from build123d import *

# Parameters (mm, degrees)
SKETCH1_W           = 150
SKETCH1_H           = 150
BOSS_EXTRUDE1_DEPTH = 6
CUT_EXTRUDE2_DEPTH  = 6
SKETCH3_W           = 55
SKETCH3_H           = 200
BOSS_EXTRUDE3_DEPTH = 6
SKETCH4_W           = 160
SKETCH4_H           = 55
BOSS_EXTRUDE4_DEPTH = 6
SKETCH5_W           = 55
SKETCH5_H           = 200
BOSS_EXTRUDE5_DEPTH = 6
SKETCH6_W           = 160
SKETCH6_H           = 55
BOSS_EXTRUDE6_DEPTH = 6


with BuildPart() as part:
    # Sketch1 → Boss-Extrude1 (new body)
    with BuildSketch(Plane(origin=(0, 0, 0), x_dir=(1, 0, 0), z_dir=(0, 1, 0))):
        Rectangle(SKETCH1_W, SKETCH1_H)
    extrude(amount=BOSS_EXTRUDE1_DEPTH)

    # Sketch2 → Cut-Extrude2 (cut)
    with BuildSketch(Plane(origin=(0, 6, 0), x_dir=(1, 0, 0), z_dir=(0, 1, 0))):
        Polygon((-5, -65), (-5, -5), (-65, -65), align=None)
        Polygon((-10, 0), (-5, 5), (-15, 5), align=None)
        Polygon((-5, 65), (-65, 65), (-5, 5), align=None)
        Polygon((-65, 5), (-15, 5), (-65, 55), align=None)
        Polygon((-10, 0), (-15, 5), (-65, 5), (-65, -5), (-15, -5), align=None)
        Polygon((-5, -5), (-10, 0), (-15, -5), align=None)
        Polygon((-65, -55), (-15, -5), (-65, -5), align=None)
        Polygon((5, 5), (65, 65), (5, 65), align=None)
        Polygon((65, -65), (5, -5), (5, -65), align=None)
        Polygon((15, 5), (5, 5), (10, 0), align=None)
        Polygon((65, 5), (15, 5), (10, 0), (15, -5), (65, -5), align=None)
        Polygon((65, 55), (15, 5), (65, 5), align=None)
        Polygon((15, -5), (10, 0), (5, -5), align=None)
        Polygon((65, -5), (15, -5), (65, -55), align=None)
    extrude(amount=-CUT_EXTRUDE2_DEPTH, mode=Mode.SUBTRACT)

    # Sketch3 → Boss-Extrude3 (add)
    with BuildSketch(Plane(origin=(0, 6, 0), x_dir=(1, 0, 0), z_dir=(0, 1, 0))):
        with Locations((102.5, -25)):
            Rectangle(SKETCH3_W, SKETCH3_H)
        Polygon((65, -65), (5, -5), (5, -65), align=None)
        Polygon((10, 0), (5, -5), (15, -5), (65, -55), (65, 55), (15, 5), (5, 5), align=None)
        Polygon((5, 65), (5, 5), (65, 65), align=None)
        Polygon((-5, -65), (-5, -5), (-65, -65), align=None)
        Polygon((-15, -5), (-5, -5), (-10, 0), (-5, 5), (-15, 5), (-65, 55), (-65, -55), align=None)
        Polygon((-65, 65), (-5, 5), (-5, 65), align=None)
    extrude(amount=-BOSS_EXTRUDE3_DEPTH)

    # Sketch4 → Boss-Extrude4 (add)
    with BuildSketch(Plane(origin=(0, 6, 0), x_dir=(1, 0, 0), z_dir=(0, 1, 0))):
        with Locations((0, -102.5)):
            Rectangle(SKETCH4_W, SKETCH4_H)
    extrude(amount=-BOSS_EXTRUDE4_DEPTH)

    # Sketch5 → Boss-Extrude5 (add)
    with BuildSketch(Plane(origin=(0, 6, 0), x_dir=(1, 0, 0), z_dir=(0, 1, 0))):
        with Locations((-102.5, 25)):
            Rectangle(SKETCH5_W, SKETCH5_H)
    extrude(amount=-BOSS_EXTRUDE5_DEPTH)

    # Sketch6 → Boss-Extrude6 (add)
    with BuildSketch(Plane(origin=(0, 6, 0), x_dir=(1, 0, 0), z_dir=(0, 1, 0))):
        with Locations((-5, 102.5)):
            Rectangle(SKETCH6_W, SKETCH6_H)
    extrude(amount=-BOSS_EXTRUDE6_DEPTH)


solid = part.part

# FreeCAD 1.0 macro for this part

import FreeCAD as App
import Part
import Sketcher
from FreeCAD import Vector

doc = App.newDocument("Part")
params = doc.addObject("Spreadsheet::Sheet", "Params")
for row, (alias, value) in enumerate([
    ("sketch1_width", "150 mm"),
    ("pad1_length", "6 mm"),
    ("sketch2_width", "60 mm"),
    ("sketch2_width2", "10 mm"),
    ("sketch2_height", "110 mm"),
    ("pocket1_length", "6 mm"),
    ("sketch3_width", "55 mm"),
    ("sketch3_width2", "60 mm"),
    ("sketch3_width3", "10 mm"),
    ("sketch3_height", "200 mm"),
    ("sketch3_height2", "110 mm"),
    ("pad2_length", "6 mm"),
    ("sketch4_width", "160 mm"),
    ("sketch4_height", "55 mm"),
    ("pad3_length", "6 mm"),
    ("sketch5_width", "55 mm"),
    ("sketch5_height", "200 mm"),
    ("pad4_length", "6 mm"),
    ("sketch6_width", "160 mm"),
    ("sketch6_height", "55 mm"),
    ("pad5_length", "6 mm"),
], start=1):
    params.set(f"A{row}", alias)
    params.set(f"B{row}", "=" + value)
    params.setAlias(f"B{row}", alias)

body = doc.addObject("PartDesign::Body", "Body")

# Sketch on XZ plane
sketch1 = doc.addObject("Sketcher::SketchObject", "Sketch")
body.addObject(sketch1)
sketch1.AttachmentSupport = (doc.XZ_Plane, [""])
sketch1.MapMode = "FlatFace"
sketch1.addGeometry(Part.LineSegment(Vector(-75, -75, 0), Vector(-75, 75, 0)), False)
sketch1.addGeometry(Part.LineSegment(Vector(-75, 75, 0), Vector(75, 75, 0)), False)
sketch1.addGeometry(Part.LineSegment(Vector(75, 75, 0), Vector(75, -75, 0)), False)
sketch1.addGeometry(Part.LineSegment(Vector(75, -75, 0), Vector(-75, -75, 0)), False)
sketch1.addConstraint(Sketcher.Constraint("Coincident", 0, 2, 1, 1))
sketch1.addConstraint(Sketcher.Constraint("Coincident", 1, 2, 2, 1))
sketch1.addConstraint(Sketcher.Constraint("Coincident", 2, 2, 3, 1))
sketch1.addConstraint(Sketcher.Constraint("Coincident", 3, 2, 0, 1))
sketch1.addConstraint(Sketcher.Constraint("Vertical", 0))
sketch1.addConstraint(Sketcher.Constraint("Horizontal", 1))
sketch1.addConstraint(Sketcher.Constraint("Vertical", 2))
sketch1.addConstraint(Sketcher.Constraint("Horizontal", 3))
sketch1.addConstraint(Sketcher.Constraint("Symmetric", 0, 2, 2, 2, -1, 1))
sketch1.addConstraint(Sketcher.Constraint("Equal", 3, 0))
sketch1.addConstraint(Sketcher.Constraint("DistanceX", 1, 1, 1, 2, 150.0))
sketch1.setExpression("Constraints[10]", "Params.sketch1_width")
pad1 = doc.addObject("PartDesign::Pad", "Pad")
body.addObject(pad1)
pad1.Profile = sketch1
pad1.setExpression("Length", "Params.pad1_length")
pad1.Reversed = True

# Sketch on XZ plane
sketch2 = doc.addObject("Sketcher::SketchObject", "Sketch001")
body.addObject(sketch2)
sketch2.AttachmentSupport = (doc.XZ_Plane, [""])
sketch2.MapMode = "FlatFace"
sketch2.AttachmentOffset = App.Placement(Vector(0, 0, -6), App.Rotation())
sketch2.addGeometry(Part.LineSegment(Vector(-5, 65, 0), Vector(-5, 5, 0)), False)
sketch2.addGeometry(Part.LineSegment(Vector(-5, 5, 0), Vector(-65, 65, 0)), False)
sketch2.addGeometry(Part.LineSegment(Vector(-65, 65, 0), Vector(-5, 65, 0)), False)
sketch2.addGeometry(Part.LineSegment(Vector(-5, -5, 0), Vector(-15, -5, 0)), False)
sketch2.addGeometry(Part.LineSegment(Vector(-15, -5, 0), Vector(-65, -55, 0)), False)
sketch2.addGeometry(Part.LineSegment(Vector(-65, -55, 0), Vector(-65, 55, 0)), False)
sketch2.addGeometry(Part.LineSegment(Vector(-65, 55, 0), Vector(-15, 5, 0)), False)
sketch2.addGeometry(Part.LineSegment(Vector(-15, 5, 0), Vector(-5, 5, 0)), False)
sketch2.addGeometry(Part.LineSegment(Vector(-5, 5, 0), Vector(-10, 0, 0)), False)
sketch2.addGeometry(Part.LineSegment(Vector(-10, 0, 0), Vector(-5, -5, 0)), False)
sketch2.addGeometry(Part.LineSegment(Vector(-5, -65, 0), Vector(-65, -65, 0)), False)
sketch2.addGeometry(Part.LineSegment(Vector(-65, -65, 0), Vector(-5, -5, 0)), False)
sketch2.addGeometry(Part.LineSegment(Vector(-5, -5, 0), Vector(-5, -65, 0)), False)
sketch2.addGeometry(Part.LineSegment(Vector(5, -5, 0), Vector(65, -65, 0)), False)
sketch2.addGeometry(Part.LineSegment(Vector(65, -65, 0), Vector(5, -65, 0)), False)
sketch2.addGeometry(Part.LineSegment(Vector(5, -65, 0), Vector(5, -5, 0)), False)
sketch2.addGeometry(Part.LineSegment(Vector(65, 65, 0), Vector(5, 5, 0)), False)
sketch2.addGeometry(Part.LineSegment(Vector(5, 5, 0), Vector(5, 65, 0)), False)
sketch2.addGeometry(Part.LineSegment(Vector(5, 65, 0), Vector(65, 65, 0)), False)
sketch2.addGeometry(Part.LineSegment(Vector(5, -5, 0), Vector(10, 0, 0)), False)
sketch2.addGeometry(Part.LineSegment(Vector(10, 0, 0), Vector(5, 5, 0)), False)
sketch2.addGeometry(Part.LineSegment(Vector(5, 5, 0), Vector(15, 5, 0)), False)
sketch2.addGeometry(Part.LineSegment(Vector(15, 5, 0), Vector(65, 55, 0)), False)
sketch2.addGeometry(Part.LineSegment(Vector(65, 55, 0), Vector(65, -55, 0)), False)
sketch2.addGeometry(Part.LineSegment(Vector(65, -55, 0), Vector(15, -5, 0)), False)
sketch2.addGeometry(Part.LineSegment(Vector(15, -5, 0), Vector(5, -5, 0)), False)
sketch2.addConstraint(Sketcher.Constraint("Coincident", 0, 2, 1, 1))
sketch2.addConstraint(Sketcher.Constraint("Coincident", 1, 2, 2, 1))
sketch2.addConstraint(Sketcher.Constraint("Coincident", 2, 2, 0, 1))
sketch2.addConstraint(Sketcher.Constraint("Coincident", 3, 2, 4, 1))
sketch2.addConstraint(Sketcher.Constraint("Coincident", 4, 2, 5, 1))
sketch2.addConstraint(Sketcher.Constraint("Coincident", 5, 2, 6, 1))
sketch2.addConstraint(Sketcher.Constraint("Coincident", 6, 2, 7, 1))
sketch2.addConstraint(Sketcher.Constraint("Coincident", 7, 2, 8, 1))
sketch2.addConstraint(Sketcher.Constraint("Coincident", 8, 2, 9, 1))
sketch2.addConstraint(Sketcher.Constraint("Coincident", 9, 2, 3, 1))
sketch2.addConstraint(Sketcher.Constraint("Coincident", 10, 2, 11, 1))
sketch2.addConstraint(Sketcher.Constraint("Coincident", 11, 2, 12, 1))
sketch2.addConstraint(Sketcher.Constraint("Coincident", 12, 2, 10, 1))
sketch2.addConstraint(Sketcher.Constraint("Coincident", 13, 2, 14, 1))
sketch2.addConstraint(Sketcher.Constraint("Coincident", 14, 2, 15, 1))
sketch2.addConstraint(Sketcher.Constraint("Coincident", 15, 2, 13, 1))
sketch2.addConstraint(Sketcher.Constraint("Coincident", 16, 2, 17, 1))
sketch2.addConstraint(Sketcher.Constraint("Coincident", 17, 2, 18, 1))
sketch2.addConstraint(Sketcher.Constraint("Coincident", 18, 2, 16, 1))
sketch2.addConstraint(Sketcher.Constraint("Coincident", 19, 2, 20, 1))
sketch2.addConstraint(Sketcher.Constraint("Coincident", 20, 2, 21, 1))
sketch2.addConstraint(Sketcher.Constraint("Coincident", 21, 2, 22, 1))
sketch2.addConstraint(Sketcher.Constraint("Coincident", 22, 2, 23, 1))
sketch2.addConstraint(Sketcher.Constraint("Coincident", 23, 2, 24, 1))
sketch2.addConstraint(Sketcher.Constraint("Coincident", 24, 2, 25, 1))
sketch2.addConstraint(Sketcher.Constraint("Coincident", 25, 2, 19, 1))
sketch2.addConstraint(Sketcher.Constraint("Vertical", 0))
sketch2.addConstraint(Sketcher.Constraint("Horizontal", 2))
sketch2.addConstraint(Sketcher.Constraint("Horizontal", 3))
sketch2.addConstraint(Sketcher.Constraint("Vertical", 5))
sketch2.addConstraint(Sketcher.Constraint("Horizontal", 7))
sketch2.addConstraint(Sketcher.Constraint("Horizontal", 10))
sketch2.addConstraint(Sketcher.Constraint("Vertical", 12))
sketch2.addConstraint(Sketcher.Constraint("Horizontal", 14))
sketch2.addConstraint(Sketcher.Constraint("Vertical", 15))
sketch2.addConstraint(Sketcher.Constraint("Vertical", 17))
sketch2.addConstraint(Sketcher.Constraint("Horizontal", 18))
sketch2.addConstraint(Sketcher.Constraint("Horizontal", 21))
sketch2.addConstraint(Sketcher.Constraint("Vertical", 23))
sketch2.addConstraint(Sketcher.Constraint("Horizontal", 25))
sketch2.addConstraint(Sketcher.Constraint("Coincident", 7, 2, 0, 2))
sketch2.addConstraint(Sketcher.Constraint("Coincident", 11, 2, 9, 2))
sketch2.addConstraint(Sketcher.Constraint("Coincident", 20, 2, 16, 2))
sketch2.addConstraint(Sketcher.Constraint("Coincident", 25, 2, 15, 2))
sketch2.addConstraint(Sketcher.Constraint("Symmetric", 1, 2, 13, 2, -1, 1))
sketch2.addConstraint(Sketcher.Constraint("Symmetric", 0, 2, 15, 2, -1, 1))
sketch2.addConstraint(Sketcher.Constraint("Symmetric", 9, 2, 16, 2, -1, 1))
sketch2.addConstraint(Sketcher.Constraint("Symmetric", 10, 2, 18, 2, -1, 1))
sketch2.addConstraint(Sketcher.Constraint("Symmetric", 8, 2, 19, 2, -1, 1))
sketch2.addConstraint(Sketcher.Constraint("Symmetric", 4, 2, 22, 2, -1, 1))
sketch2.addConstraint(Sketcher.Constraint("Symmetric", 10, 2, 13, 2, -2))
sketch2.addConstraint(Sketcher.Constraint("Symmetric", 9, 2, 15, 2, -2))
sketch2.addConstraint(Sketcher.Constraint("PointOnObject", 8, 2, -1))
sketch2.addConstraint(Sketcher.Constraint("Perpendicular", 1, 4))
sketch2.addConstraint(Sketcher.Constraint("Perpendicular", 4, 6))
sketch2.addConstraint(Sketcher.Constraint("Perpendicular", 6, 8))
sketch2.addConstraint(Sketcher.Constraint("Perpendicular", 8, 9))
sketch2.addConstraint(Sketcher.Constraint("Perpendicular", 20, 22))
sketch2.addConstraint(Sketcher.Constraint("Perpendicular", 22, 24))
sketch2.addConstraint(Sketcher.Constraint("Horizontal", 5, 2, 22, 2))
sketch2.addConstraint(Sketcher.Constraint("Horizontal", 4, 2, 23, 2))
sketch2.addConstraint(Sketcher.Constraint("Vertical", 1, 2, 4, 2))
sketch2.addConstraint(Sketcher.Constraint("DistanceX", 2, 1, 2, 2, 60.0))
sketch2.addConstraint(Sketcher.Constraint("DistanceX", 3, 2, 3, 1, 10.0))
sketch2.addConstraint(Sketcher.Constraint("DistanceY", 5, 1, 5, 2, 110.0))
sketch2.addConstraint(Sketcher.Constraint("DistanceX", 0, 2, -1, 1, 5.0))
sketch2.setExpression("Constraints[62]", "Params.sketch2_width")
sketch2.setExpression("Constraints[63]", "Params.sketch2_width2")
sketch2.setExpression("Constraints[64]", "Params.sketch2_height")
pocket1 = doc.addObject("PartDesign::Pocket", "Pocket")
body.addObject(pocket1)
pocket1.Profile = sketch2
pocket1.setExpression("Length", "Params.pocket1_length")
pocket1.Reversed = True

# Sketch on XZ plane
sketch3 = doc.addObject("Sketcher::SketchObject", "Sketch002")
body.addObject(sketch3)
sketch3.AttachmentSupport = (doc.XZ_Plane, [""])
sketch3.MapMode = "FlatFace"
sketch3.AttachmentOffset = App.Placement(Vector(0, 0, -6), App.Rotation())
sketch3.addGeometry(Part.LineSegment(Vector(75, -75, 0), Vector(75, 125, 0)), False)
sketch3.addGeometry(Part.LineSegment(Vector(75, 125, 0), Vector(130, 125, 0)), False)
sketch3.addGeometry(Part.LineSegment(Vector(130, 125, 0), Vector(130, -75, 0)), False)
sketch3.addGeometry(Part.LineSegment(Vector(130, -75, 0), Vector(75, -75, 0)), False)
sketch3.addGeometry(Part.LineSegment(Vector(65, 65, 0), Vector(5, 5, 0)), False)
sketch3.addGeometry(Part.LineSegment(Vector(5, 5, 0), Vector(5, 65, 0)), False)
sketch3.addGeometry(Part.LineSegment(Vector(5, 65, 0), Vector(65, 65, 0)), False)
sketch3.addGeometry(Part.LineSegment(Vector(10, 0, 0), Vector(5, 5, 0)), False)
sketch3.addGeometry(Part.LineSegment(Vector(5, 5, 0), Vector(15, 5, 0)), False)
sketch3.addGeometry(Part.LineSegment(Vector(15, 5, 0), Vector(65, 55, 0)), False)
sketch3.addGeometry(Part.LineSegment(Vector(65, 55, 0), Vector(65, -55, 0)), False)
sketch3.addGeometry(Part.LineSegment(Vector(65, -55, 0), Vector(15, -5, 0)), False)
sketch3.addGeometry(Part.LineSegment(Vector(15, -5, 0), Vector(5, -5, 0)), False)
sketch3.addGeometry(Part.LineSegment(Vector(5, -5, 0), Vector(10, 0, 0)), False)
sketch3.addGeometry(Part.LineSegment(Vector(5, -65, 0), Vector(5, -5, 0)), False)
sketch3.addGeometry(Part.LineSegment(Vector(5, -5, 0), Vector(65, -65, 0)), False)
sketch3.addGeometry(Part.LineSegment(Vector(65, -65, 0), Vector(5, -65, 0)), False)
sketch3.addGeometry(Part.LineSegment(Vector(-5, 65, 0), Vector(-5, 5, 0)), False)
sketch3.addGeometry(Part.LineSegment(Vector(-5, 5, 0), Vector(-65, 65, 0)), False)
sketch3.addGeometry(Part.LineSegment(Vector(-65, 65, 0), Vector(-5, 65, 0)), False)
sketch3.addGeometry(Part.LineSegment(Vector(-15, 5, 0), Vector(-5, 5, 0)), False)
sketch3.addGeometry(Part.LineSegment(Vector(-5, 5, 0), Vector(-10, 0, 0)), False)
sketch3.addGeometry(Part.LineSegment(Vector(-10, 0, 0), Vector(-5, -5, 0)), False)
sketch3.addGeometry(Part.LineSegment(Vector(-5, -5, 0), Vector(-15, -5, 0)), False)
sketch3.addGeometry(Part.LineSegment(Vector(-15, -5, 0), Vector(-65, -55, 0)), False)
sketch3.addGeometry(Part.LineSegment(Vector(-65, -55, 0), Vector(-65, 55, 0)), False)
sketch3.addGeometry(Part.LineSegment(Vector(-65, 55, 0), Vector(-15, 5, 0)), False)
sketch3.addGeometry(Part.LineSegment(Vector(-65, -65, 0), Vector(-5, -5, 0)), False)
sketch3.addGeometry(Part.LineSegment(Vector(-5, -5, 0), Vector(-5, -65, 0)), False)
sketch3.addGeometry(Part.LineSegment(Vector(-5, -65, 0), Vector(-65, -65, 0)), False)
sketch3.addConstraint(Sketcher.Constraint("Coincident", 0, 2, 1, 1))
sketch3.addConstraint(Sketcher.Constraint("Coincident", 1, 2, 2, 1))
sketch3.addConstraint(Sketcher.Constraint("Coincident", 2, 2, 3, 1))
sketch3.addConstraint(Sketcher.Constraint("Coincident", 3, 2, 0, 1))
sketch3.addConstraint(Sketcher.Constraint("Coincident", 4, 2, 5, 1))
sketch3.addConstraint(Sketcher.Constraint("Coincident", 5, 2, 6, 1))
sketch3.addConstraint(Sketcher.Constraint("Coincident", 6, 2, 4, 1))
sketch3.addConstraint(Sketcher.Constraint("Coincident", 7, 2, 8, 1))
sketch3.addConstraint(Sketcher.Constraint("Coincident", 8, 2, 9, 1))
sketch3.addConstraint(Sketcher.Constraint("Coincident", 9, 2, 10, 1))
sketch3.addConstraint(Sketcher.Constraint("Coincident", 10, 2, 11, 1))
sketch3.addConstraint(Sketcher.Constraint("Coincident", 11, 2, 12, 1))
sketch3.addConstraint(Sketcher.Constraint("Coincident", 12, 2, 13, 1))
sketch3.addConstraint(Sketcher.Constraint("Coincident", 13, 2, 7, 1))
sketch3.addConstraint(Sketcher.Constraint("Coincident", 14, 2, 15, 1))
sketch3.addConstraint(Sketcher.Constraint("Coincident", 15, 2, 16, 1))
sketch3.addConstraint(Sketcher.Constraint("Coincident", 16, 2, 14, 1))
sketch3.addConstraint(Sketcher.Constraint("Coincident", 17, 2, 18, 1))
sketch3.addConstraint(Sketcher.Constraint("Coincident", 18, 2, 19, 1))
sketch3.addConstraint(Sketcher.Constraint("Coincident", 19, 2, 17, 1))
sketch3.addConstraint(Sketcher.Constraint("Coincident", 20, 2, 21, 1))
sketch3.addConstraint(Sketcher.Constraint("Coincident", 21, 2, 22, 1))
sketch3.addConstraint(Sketcher.Constraint("Coincident", 22, 2, 23, 1))
sketch3.addConstraint(Sketcher.Constraint("Coincident", 23, 2, 24, 1))
sketch3.addConstraint(Sketcher.Constraint("Coincident", 24, 2, 25, 1))
sketch3.addConstraint(Sketcher.Constraint("Coincident", 25, 2, 26, 1))
sketch3.addConstraint(Sketcher.Constraint("Coincident", 26, 2, 20, 1))
sketch3.addConstraint(Sketcher.Constraint("Coincident", 27, 2, 28, 1))
sketch3.addConstraint(Sketcher.Constraint("Coincident", 28, 2, 29, 1))
sketch3.addConstraint(Sketcher.Constraint("Coincident", 29, 2, 27, 1))
sketch3.addConstraint(Sketcher.Constraint("Vertical", 0))
sketch3.addConstraint(Sketcher.Constraint("Horizontal", 1))
sketch3.addConstraint(Sketcher.Constraint("Vertical", 2))
sketch3.addConstraint(Sketcher.Constraint("Horizontal", 3))
sketch3.addConstraint(Sketcher.Constraint("Vertical", 5))
sketch3.addConstraint(Sketcher.Constraint("Horizontal", 6))
sketch3.addConstraint(Sketcher.Constraint("Horizontal", 8))
sketch3.addConstraint(Sketcher.Constraint("Vertical", 10))
sketch3.addConstraint(Sketcher.Constraint("Horizontal", 12))
sketch3.addConstraint(Sketcher.Constraint("Vertical", 14))
sketch3.addConstraint(Sketcher.Constraint("Horizontal", 16))
sketch3.addConstraint(Sketcher.Constraint("Vertical", 17))
sketch3.addConstraint(Sketcher.Constraint("Horizontal", 19))
sketch3.addConstraint(Sketcher.Constraint("Horizontal", 20))
sketch3.addConstraint(Sketcher.Constraint("Horizontal", 23))
sketch3.addConstraint(Sketcher.Constraint("Vertical", 25))
sketch3.addConstraint(Sketcher.Constraint("Vertical", 28))
sketch3.addConstraint(Sketcher.Constraint("Horizontal", 29))
sketch3.addConstraint(Sketcher.Constraint("Coincident", 7, 2, 4, 2))
sketch3.addConstraint(Sketcher.Constraint("Coincident", 14, 2, 12, 2))
sketch3.addConstraint(Sketcher.Constraint("Coincident", 20, 2, 17, 2))
sketch3.addConstraint(Sketcher.Constraint("Coincident", 27, 2, 22, 2))
sketch3.addConstraint(Sketcher.Constraint("Symmetric", 12, 2, 17, 2, -1, 1))
sketch3.addConstraint(Sketcher.Constraint("Symmetric", 15, 2, 18, 2, -1, 1))
sketch3.addConstraint(Sketcher.Constraint("Symmetric", 13, 2, 21, 2, -1, 1))
sketch3.addConstraint(Sketcher.Constraint("Symmetric", 4, 2, 22, 2, -1, 1))
sketch3.addConstraint(Sketcher.Constraint("Symmetric", 9, 2, 24, 2, -1, 1))
sketch3.addConstraint(Sketcher.Constraint("Symmetric", 6, 2, 29, 2, -1, 1))
sketch3.addConstraint(Sketcher.Constraint("Symmetric", 4, 2, 17, 2, -2))
sketch3.addConstraint(Sketcher.Constraint("Symmetric", 6, 2, 18, 2, -2))
sketch3.addConstraint(Sketcher.Constraint("PointOnObject", 13, 2, -1))
sketch3.addConstraint(Sketcher.Constraint("Perpendicular", 4, 7))
sketch3.addConstraint(Sketcher.Constraint("Perpendicular", 7, 9))
sketch3.addConstraint(Sketcher.Constraint("Perpendicular", 9, 11))
sketch3.addConstraint(Sketcher.Constraint("Perpendicular", 11, 13))
sketch3.addConstraint(Sketcher.Constraint("Perpendicular", 22, 24))
sketch3.addConstraint(Sketcher.Constraint("Perpendicular", 24, 26))
sketch3.addConstraint(Sketcher.Constraint("Horizontal", 10, 2, 24, 2))
sketch3.addConstraint(Sketcher.Constraint("Horizontal", 9, 2, 25, 2))
sketch3.addConstraint(Sketcher.Constraint("Vertical", 6, 2, 9, 2))
sketch3.addConstraint(Sketcher.Constraint("DistanceX", 1, 1, 1, 2, 55.0))
sketch3.addConstraint(Sketcher.Constraint("DistanceX", 6, 1, 6, 2, 60.0))
sketch3.addConstraint(Sketcher.Constraint("DistanceX", 8, 1, 8, 2, 10.0))
sketch3.addConstraint(Sketcher.Constraint("DistanceY", 0, 1, 0, 2, 200.0))
sketch3.addConstraint(Sketcher.Constraint("DistanceY", 10, 2, 10, 1, 110.0))
sketch3.addConstraint(Sketcher.Constraint("DistanceX", -1, 1, 0, 2, 75.0))
sketch3.addConstraint(Sketcher.Constraint("DistanceY", -1, 1, 0, 2, 125.0))
sketch3.addConstraint(Sketcher.Constraint("DistanceX", -1, 1, 4, 2, 5.0))
sketch3.setExpression("Constraints[70]", "Params.sketch3_width")
sketch3.setExpression("Constraints[71]", "Params.sketch3_width2")
sketch3.setExpression("Constraints[72]", "Params.sketch3_width3")
sketch3.setExpression("Constraints[73]", "Params.sketch3_height")
sketch3.setExpression("Constraints[74]", "Params.sketch3_height2")
pad2 = doc.addObject("PartDesign::Pad", "Pad001")
body.addObject(pad2)
pad2.Profile = sketch3
pad2.setExpression("Length", "Params.pad2_length")

# Sketch on XZ plane
sketch4 = doc.addObject("Sketcher::SketchObject", "Sketch003")
body.addObject(sketch4)
sketch4.AttachmentSupport = (doc.XZ_Plane, [""])
sketch4.MapMode = "FlatFace"
sketch4.AttachmentOffset = App.Placement(Vector(0, 0, -6), App.Rotation())
sketch4.addGeometry(Part.LineSegment(Vector(-80, 75, 0), Vector(-80, 130, 0)), False)
sketch4.addGeometry(Part.LineSegment(Vector(-80, 130, 0), Vector(80, 130, 0)), False)
sketch4.addGeometry(Part.LineSegment(Vector(80, 130, 0), Vector(80, 75, 0)), False)
sketch4.addGeometry(Part.LineSegment(Vector(80, 75, 0), Vector(-80, 75, 0)), False)
sketch4.addConstraint(Sketcher.Constraint("Coincident", 0, 2, 1, 1))
sketch4.addConstraint(Sketcher.Constraint("Coincident", 1, 2, 2, 1))
sketch4.addConstraint(Sketcher.Constraint("Coincident", 2, 2, 3, 1))
sketch4.addConstraint(Sketcher.Constraint("Coincident", 3, 2, 0, 1))
sketch4.addConstraint(Sketcher.Constraint("Vertical", 0))
sketch4.addConstraint(Sketcher.Constraint("Horizontal", 1))
sketch4.addConstraint(Sketcher.Constraint("Vertical", 2))
sketch4.addConstraint(Sketcher.Constraint("Horizontal", 3))
sketch4.addConstraint(Sketcher.Constraint("DistanceX", 1, 1, 1, 2, 160.0))
sketch4.addConstraint(Sketcher.Constraint("DistanceY", 0, 1, 0, 2, 55.0))
sketch4.addConstraint(Sketcher.Constraint("DistanceX", 0, 2, -1, 1, 80.0))
sketch4.addConstraint(Sketcher.Constraint("DistanceY", -1, 1, 0, 2, 130.0))
sketch4.setExpression("Constraints[8]", "Params.sketch4_width")
sketch4.setExpression("Constraints[9]", "Params.sketch4_height")
pad3 = doc.addObject("PartDesign::Pad", "Pad002")
body.addObject(pad3)
pad3.Profile = sketch4
pad3.setExpression("Length", "Params.pad3_length")

# Sketch on XZ plane
sketch5 = doc.addObject("Sketcher::SketchObject", "Sketch004")
body.addObject(sketch5)
sketch5.AttachmentSupport = (doc.XZ_Plane, [""])
sketch5.MapMode = "FlatFace"
sketch5.AttachmentOffset = App.Placement(Vector(0, 0, -6), App.Rotation())
sketch5.addGeometry(Part.LineSegment(Vector(-130, -125, 0), Vector(-130, 75, 0)), False)
sketch5.addGeometry(Part.LineSegment(Vector(-130, 75, 0), Vector(-75, 75, 0)), False)
sketch5.addGeometry(Part.LineSegment(Vector(-75, 75, 0), Vector(-75, -125, 0)), False)
sketch5.addGeometry(Part.LineSegment(Vector(-75, -125, 0), Vector(-130, -125, 0)), False)
sketch5.addConstraint(Sketcher.Constraint("Coincident", 0, 2, 1, 1))
sketch5.addConstraint(Sketcher.Constraint("Coincident", 1, 2, 2, 1))
sketch5.addConstraint(Sketcher.Constraint("Coincident", 2, 2, 3, 1))
sketch5.addConstraint(Sketcher.Constraint("Coincident", 3, 2, 0, 1))
sketch5.addConstraint(Sketcher.Constraint("Vertical", 0))
sketch5.addConstraint(Sketcher.Constraint("Horizontal", 1))
sketch5.addConstraint(Sketcher.Constraint("Vertical", 2))
sketch5.addConstraint(Sketcher.Constraint("Horizontal", 3))
sketch5.addConstraint(Sketcher.Constraint("DistanceX", 1, 1, 1, 2, 55.0))
sketch5.addConstraint(Sketcher.Constraint("DistanceY", 0, 1, 0, 2, 200.0))
sketch5.addConstraint(Sketcher.Constraint("DistanceX", 0, 2, -1, 1, 130.0))
sketch5.addConstraint(Sketcher.Constraint("DistanceY", -1, 1, 0, 2, 75.0))
sketch5.setExpression("Constraints[8]", "Params.sketch5_width")
sketch5.setExpression("Constraints[9]", "Params.sketch5_height")
pad4 = doc.addObject("PartDesign::Pad", "Pad003")
body.addObject(pad4)
pad4.Profile = sketch5
pad4.setExpression("Length", "Params.pad4_length")

# Sketch on XZ plane
sketch6 = doc.addObject("Sketcher::SketchObject", "Sketch005")
body.addObject(sketch6)
sketch6.AttachmentSupport = (doc.XZ_Plane, [""])
sketch6.MapMode = "FlatFace"
sketch6.AttachmentOffset = App.Placement(Vector(0, 0, -6), App.Rotation())
sketch6.addGeometry(Part.LineSegment(Vector(-85, -130, 0), Vector(-85, -75, 0)), False)
sketch6.addGeometry(Part.LineSegment(Vector(-85, -75, 0), Vector(75, -75, 0)), False)
sketch6.addGeometry(Part.LineSegment(Vector(75, -75, 0), Vector(75, -130, 0)), False)
sketch6.addGeometry(Part.LineSegment(Vector(75, -130, 0), Vector(-85, -130, 0)), False)
sketch6.addConstraint(Sketcher.Constraint("Coincident", 0, 2, 1, 1))
sketch6.addConstraint(Sketcher.Constraint("Coincident", 1, 2, 2, 1))
sketch6.addConstraint(Sketcher.Constraint("Coincident", 2, 2, 3, 1))
sketch6.addConstraint(Sketcher.Constraint("Coincident", 3, 2, 0, 1))
sketch6.addConstraint(Sketcher.Constraint("Vertical", 0))
sketch6.addConstraint(Sketcher.Constraint("Horizontal", 1))
sketch6.addConstraint(Sketcher.Constraint("Vertical", 2))
sketch6.addConstraint(Sketcher.Constraint("Horizontal", 3))
sketch6.addConstraint(Sketcher.Constraint("DistanceX", 1, 1, 1, 2, 160.0))
sketch6.addConstraint(Sketcher.Constraint("DistanceY", 0, 1, 0, 2, 55.0))
sketch6.addConstraint(Sketcher.Constraint("DistanceX", 0, 2, -1, 1, 85.0))
sketch6.addConstraint(Sketcher.Constraint("DistanceY", 0, 2, -1, 1, 75.0))
sketch6.setExpression("Constraints[8]", "Params.sketch6_width")
sketch6.setExpression("Constraints[9]", "Params.sketch6_height")
pad5 = doc.addObject("PartDesign::Pad", "Pad004")
body.addObject(pad5)
pad5.Profile = sketch6
pad5.setExpression("Length", "Params.pad5_length")

doc.recompute()
